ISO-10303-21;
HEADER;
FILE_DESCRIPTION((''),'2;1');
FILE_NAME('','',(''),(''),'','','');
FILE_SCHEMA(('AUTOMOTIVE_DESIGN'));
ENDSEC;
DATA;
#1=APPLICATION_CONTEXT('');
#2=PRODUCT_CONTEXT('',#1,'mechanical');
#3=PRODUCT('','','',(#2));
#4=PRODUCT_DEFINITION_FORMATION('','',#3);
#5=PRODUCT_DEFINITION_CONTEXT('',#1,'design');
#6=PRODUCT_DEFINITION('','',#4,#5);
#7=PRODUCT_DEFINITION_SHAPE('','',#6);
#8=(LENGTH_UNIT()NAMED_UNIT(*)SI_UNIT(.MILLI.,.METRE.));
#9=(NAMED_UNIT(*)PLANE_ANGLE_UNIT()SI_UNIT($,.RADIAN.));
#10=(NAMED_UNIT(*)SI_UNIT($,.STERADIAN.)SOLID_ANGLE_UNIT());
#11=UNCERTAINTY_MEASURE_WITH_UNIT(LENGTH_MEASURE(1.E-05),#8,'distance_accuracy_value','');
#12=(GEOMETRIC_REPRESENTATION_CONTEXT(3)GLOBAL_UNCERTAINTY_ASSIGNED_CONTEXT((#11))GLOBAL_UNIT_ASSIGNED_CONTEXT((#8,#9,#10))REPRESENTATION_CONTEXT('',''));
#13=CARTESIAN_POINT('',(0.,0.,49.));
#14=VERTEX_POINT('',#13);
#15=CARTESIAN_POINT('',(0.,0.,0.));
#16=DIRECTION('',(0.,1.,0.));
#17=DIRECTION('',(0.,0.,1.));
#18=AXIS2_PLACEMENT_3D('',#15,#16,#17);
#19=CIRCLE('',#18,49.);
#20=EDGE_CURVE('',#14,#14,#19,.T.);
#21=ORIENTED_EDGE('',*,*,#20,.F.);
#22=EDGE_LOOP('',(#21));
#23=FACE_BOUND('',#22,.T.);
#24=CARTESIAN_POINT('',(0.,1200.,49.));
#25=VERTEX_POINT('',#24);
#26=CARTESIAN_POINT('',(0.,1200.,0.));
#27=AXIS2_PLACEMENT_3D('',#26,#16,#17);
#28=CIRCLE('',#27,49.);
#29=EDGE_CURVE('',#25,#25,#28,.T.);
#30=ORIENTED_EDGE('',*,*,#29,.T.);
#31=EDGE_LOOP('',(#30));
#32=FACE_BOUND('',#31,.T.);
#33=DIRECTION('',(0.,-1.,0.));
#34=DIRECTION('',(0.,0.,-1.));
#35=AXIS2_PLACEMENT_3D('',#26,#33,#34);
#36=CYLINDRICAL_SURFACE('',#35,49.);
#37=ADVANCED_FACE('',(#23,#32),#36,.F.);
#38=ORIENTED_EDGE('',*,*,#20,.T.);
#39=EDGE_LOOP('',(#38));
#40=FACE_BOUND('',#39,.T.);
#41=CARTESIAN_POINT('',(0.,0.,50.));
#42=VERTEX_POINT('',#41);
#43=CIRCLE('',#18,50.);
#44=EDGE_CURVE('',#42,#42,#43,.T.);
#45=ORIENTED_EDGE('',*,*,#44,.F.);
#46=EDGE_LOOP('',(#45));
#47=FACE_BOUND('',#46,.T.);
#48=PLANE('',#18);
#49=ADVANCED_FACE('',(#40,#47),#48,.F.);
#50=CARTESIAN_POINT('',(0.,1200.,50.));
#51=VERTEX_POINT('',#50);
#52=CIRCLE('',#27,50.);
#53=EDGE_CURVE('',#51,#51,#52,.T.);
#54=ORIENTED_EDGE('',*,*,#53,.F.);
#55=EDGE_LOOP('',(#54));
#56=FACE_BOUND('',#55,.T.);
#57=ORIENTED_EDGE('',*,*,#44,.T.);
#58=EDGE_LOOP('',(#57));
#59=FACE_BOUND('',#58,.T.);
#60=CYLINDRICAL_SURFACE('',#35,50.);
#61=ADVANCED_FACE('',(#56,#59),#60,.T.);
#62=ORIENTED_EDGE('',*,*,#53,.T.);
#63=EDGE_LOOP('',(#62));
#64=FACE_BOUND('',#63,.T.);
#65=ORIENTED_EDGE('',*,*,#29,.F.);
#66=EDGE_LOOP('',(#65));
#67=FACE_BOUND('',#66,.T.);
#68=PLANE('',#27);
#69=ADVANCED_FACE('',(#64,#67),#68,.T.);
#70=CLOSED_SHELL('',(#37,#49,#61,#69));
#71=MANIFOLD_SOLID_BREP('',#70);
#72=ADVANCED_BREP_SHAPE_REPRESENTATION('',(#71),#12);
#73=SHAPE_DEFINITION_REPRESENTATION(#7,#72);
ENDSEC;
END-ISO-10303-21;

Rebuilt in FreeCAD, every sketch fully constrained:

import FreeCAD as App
import Part
import Sketcher

V = App.Vector

doc = App.newDocument("Part")
body = doc.addObject("PartDesign::Body", "Body")

# Sketch on XZ plane
sketch1 = body.newObject("Sketcher::SketchObject", "Sketch")
sketch1.AttachmentSupport = (doc.getObject("XZ_Plane"), [""])
sketch1.MapMode = "FlatFace"
sketch1.addGeometry([
    Part.Circle(V(0, 0, 0), V(0, 0, 1), 50),
    Part.Circle(V(0, 0, 0), V(0, 0, 1), 49),
], False)
sketch1.addConstraint([
    Sketcher.Constraint("Coincident", 0, 3, -1, 1),
    Sketcher.Constraint("Coincident", 1, 3, -1, 1),
    Sketcher.Constraint("Diameter", 0, 100.0),
    Sketcher.Constraint("Diameter", 1, 98.0),
])
pad1 = body.newObject("PartDesign::Pad", "Pad")
pad1.Profile = sketch1
pad1.Length = 1200
pad1.Reversed = True

doc.recompute()
